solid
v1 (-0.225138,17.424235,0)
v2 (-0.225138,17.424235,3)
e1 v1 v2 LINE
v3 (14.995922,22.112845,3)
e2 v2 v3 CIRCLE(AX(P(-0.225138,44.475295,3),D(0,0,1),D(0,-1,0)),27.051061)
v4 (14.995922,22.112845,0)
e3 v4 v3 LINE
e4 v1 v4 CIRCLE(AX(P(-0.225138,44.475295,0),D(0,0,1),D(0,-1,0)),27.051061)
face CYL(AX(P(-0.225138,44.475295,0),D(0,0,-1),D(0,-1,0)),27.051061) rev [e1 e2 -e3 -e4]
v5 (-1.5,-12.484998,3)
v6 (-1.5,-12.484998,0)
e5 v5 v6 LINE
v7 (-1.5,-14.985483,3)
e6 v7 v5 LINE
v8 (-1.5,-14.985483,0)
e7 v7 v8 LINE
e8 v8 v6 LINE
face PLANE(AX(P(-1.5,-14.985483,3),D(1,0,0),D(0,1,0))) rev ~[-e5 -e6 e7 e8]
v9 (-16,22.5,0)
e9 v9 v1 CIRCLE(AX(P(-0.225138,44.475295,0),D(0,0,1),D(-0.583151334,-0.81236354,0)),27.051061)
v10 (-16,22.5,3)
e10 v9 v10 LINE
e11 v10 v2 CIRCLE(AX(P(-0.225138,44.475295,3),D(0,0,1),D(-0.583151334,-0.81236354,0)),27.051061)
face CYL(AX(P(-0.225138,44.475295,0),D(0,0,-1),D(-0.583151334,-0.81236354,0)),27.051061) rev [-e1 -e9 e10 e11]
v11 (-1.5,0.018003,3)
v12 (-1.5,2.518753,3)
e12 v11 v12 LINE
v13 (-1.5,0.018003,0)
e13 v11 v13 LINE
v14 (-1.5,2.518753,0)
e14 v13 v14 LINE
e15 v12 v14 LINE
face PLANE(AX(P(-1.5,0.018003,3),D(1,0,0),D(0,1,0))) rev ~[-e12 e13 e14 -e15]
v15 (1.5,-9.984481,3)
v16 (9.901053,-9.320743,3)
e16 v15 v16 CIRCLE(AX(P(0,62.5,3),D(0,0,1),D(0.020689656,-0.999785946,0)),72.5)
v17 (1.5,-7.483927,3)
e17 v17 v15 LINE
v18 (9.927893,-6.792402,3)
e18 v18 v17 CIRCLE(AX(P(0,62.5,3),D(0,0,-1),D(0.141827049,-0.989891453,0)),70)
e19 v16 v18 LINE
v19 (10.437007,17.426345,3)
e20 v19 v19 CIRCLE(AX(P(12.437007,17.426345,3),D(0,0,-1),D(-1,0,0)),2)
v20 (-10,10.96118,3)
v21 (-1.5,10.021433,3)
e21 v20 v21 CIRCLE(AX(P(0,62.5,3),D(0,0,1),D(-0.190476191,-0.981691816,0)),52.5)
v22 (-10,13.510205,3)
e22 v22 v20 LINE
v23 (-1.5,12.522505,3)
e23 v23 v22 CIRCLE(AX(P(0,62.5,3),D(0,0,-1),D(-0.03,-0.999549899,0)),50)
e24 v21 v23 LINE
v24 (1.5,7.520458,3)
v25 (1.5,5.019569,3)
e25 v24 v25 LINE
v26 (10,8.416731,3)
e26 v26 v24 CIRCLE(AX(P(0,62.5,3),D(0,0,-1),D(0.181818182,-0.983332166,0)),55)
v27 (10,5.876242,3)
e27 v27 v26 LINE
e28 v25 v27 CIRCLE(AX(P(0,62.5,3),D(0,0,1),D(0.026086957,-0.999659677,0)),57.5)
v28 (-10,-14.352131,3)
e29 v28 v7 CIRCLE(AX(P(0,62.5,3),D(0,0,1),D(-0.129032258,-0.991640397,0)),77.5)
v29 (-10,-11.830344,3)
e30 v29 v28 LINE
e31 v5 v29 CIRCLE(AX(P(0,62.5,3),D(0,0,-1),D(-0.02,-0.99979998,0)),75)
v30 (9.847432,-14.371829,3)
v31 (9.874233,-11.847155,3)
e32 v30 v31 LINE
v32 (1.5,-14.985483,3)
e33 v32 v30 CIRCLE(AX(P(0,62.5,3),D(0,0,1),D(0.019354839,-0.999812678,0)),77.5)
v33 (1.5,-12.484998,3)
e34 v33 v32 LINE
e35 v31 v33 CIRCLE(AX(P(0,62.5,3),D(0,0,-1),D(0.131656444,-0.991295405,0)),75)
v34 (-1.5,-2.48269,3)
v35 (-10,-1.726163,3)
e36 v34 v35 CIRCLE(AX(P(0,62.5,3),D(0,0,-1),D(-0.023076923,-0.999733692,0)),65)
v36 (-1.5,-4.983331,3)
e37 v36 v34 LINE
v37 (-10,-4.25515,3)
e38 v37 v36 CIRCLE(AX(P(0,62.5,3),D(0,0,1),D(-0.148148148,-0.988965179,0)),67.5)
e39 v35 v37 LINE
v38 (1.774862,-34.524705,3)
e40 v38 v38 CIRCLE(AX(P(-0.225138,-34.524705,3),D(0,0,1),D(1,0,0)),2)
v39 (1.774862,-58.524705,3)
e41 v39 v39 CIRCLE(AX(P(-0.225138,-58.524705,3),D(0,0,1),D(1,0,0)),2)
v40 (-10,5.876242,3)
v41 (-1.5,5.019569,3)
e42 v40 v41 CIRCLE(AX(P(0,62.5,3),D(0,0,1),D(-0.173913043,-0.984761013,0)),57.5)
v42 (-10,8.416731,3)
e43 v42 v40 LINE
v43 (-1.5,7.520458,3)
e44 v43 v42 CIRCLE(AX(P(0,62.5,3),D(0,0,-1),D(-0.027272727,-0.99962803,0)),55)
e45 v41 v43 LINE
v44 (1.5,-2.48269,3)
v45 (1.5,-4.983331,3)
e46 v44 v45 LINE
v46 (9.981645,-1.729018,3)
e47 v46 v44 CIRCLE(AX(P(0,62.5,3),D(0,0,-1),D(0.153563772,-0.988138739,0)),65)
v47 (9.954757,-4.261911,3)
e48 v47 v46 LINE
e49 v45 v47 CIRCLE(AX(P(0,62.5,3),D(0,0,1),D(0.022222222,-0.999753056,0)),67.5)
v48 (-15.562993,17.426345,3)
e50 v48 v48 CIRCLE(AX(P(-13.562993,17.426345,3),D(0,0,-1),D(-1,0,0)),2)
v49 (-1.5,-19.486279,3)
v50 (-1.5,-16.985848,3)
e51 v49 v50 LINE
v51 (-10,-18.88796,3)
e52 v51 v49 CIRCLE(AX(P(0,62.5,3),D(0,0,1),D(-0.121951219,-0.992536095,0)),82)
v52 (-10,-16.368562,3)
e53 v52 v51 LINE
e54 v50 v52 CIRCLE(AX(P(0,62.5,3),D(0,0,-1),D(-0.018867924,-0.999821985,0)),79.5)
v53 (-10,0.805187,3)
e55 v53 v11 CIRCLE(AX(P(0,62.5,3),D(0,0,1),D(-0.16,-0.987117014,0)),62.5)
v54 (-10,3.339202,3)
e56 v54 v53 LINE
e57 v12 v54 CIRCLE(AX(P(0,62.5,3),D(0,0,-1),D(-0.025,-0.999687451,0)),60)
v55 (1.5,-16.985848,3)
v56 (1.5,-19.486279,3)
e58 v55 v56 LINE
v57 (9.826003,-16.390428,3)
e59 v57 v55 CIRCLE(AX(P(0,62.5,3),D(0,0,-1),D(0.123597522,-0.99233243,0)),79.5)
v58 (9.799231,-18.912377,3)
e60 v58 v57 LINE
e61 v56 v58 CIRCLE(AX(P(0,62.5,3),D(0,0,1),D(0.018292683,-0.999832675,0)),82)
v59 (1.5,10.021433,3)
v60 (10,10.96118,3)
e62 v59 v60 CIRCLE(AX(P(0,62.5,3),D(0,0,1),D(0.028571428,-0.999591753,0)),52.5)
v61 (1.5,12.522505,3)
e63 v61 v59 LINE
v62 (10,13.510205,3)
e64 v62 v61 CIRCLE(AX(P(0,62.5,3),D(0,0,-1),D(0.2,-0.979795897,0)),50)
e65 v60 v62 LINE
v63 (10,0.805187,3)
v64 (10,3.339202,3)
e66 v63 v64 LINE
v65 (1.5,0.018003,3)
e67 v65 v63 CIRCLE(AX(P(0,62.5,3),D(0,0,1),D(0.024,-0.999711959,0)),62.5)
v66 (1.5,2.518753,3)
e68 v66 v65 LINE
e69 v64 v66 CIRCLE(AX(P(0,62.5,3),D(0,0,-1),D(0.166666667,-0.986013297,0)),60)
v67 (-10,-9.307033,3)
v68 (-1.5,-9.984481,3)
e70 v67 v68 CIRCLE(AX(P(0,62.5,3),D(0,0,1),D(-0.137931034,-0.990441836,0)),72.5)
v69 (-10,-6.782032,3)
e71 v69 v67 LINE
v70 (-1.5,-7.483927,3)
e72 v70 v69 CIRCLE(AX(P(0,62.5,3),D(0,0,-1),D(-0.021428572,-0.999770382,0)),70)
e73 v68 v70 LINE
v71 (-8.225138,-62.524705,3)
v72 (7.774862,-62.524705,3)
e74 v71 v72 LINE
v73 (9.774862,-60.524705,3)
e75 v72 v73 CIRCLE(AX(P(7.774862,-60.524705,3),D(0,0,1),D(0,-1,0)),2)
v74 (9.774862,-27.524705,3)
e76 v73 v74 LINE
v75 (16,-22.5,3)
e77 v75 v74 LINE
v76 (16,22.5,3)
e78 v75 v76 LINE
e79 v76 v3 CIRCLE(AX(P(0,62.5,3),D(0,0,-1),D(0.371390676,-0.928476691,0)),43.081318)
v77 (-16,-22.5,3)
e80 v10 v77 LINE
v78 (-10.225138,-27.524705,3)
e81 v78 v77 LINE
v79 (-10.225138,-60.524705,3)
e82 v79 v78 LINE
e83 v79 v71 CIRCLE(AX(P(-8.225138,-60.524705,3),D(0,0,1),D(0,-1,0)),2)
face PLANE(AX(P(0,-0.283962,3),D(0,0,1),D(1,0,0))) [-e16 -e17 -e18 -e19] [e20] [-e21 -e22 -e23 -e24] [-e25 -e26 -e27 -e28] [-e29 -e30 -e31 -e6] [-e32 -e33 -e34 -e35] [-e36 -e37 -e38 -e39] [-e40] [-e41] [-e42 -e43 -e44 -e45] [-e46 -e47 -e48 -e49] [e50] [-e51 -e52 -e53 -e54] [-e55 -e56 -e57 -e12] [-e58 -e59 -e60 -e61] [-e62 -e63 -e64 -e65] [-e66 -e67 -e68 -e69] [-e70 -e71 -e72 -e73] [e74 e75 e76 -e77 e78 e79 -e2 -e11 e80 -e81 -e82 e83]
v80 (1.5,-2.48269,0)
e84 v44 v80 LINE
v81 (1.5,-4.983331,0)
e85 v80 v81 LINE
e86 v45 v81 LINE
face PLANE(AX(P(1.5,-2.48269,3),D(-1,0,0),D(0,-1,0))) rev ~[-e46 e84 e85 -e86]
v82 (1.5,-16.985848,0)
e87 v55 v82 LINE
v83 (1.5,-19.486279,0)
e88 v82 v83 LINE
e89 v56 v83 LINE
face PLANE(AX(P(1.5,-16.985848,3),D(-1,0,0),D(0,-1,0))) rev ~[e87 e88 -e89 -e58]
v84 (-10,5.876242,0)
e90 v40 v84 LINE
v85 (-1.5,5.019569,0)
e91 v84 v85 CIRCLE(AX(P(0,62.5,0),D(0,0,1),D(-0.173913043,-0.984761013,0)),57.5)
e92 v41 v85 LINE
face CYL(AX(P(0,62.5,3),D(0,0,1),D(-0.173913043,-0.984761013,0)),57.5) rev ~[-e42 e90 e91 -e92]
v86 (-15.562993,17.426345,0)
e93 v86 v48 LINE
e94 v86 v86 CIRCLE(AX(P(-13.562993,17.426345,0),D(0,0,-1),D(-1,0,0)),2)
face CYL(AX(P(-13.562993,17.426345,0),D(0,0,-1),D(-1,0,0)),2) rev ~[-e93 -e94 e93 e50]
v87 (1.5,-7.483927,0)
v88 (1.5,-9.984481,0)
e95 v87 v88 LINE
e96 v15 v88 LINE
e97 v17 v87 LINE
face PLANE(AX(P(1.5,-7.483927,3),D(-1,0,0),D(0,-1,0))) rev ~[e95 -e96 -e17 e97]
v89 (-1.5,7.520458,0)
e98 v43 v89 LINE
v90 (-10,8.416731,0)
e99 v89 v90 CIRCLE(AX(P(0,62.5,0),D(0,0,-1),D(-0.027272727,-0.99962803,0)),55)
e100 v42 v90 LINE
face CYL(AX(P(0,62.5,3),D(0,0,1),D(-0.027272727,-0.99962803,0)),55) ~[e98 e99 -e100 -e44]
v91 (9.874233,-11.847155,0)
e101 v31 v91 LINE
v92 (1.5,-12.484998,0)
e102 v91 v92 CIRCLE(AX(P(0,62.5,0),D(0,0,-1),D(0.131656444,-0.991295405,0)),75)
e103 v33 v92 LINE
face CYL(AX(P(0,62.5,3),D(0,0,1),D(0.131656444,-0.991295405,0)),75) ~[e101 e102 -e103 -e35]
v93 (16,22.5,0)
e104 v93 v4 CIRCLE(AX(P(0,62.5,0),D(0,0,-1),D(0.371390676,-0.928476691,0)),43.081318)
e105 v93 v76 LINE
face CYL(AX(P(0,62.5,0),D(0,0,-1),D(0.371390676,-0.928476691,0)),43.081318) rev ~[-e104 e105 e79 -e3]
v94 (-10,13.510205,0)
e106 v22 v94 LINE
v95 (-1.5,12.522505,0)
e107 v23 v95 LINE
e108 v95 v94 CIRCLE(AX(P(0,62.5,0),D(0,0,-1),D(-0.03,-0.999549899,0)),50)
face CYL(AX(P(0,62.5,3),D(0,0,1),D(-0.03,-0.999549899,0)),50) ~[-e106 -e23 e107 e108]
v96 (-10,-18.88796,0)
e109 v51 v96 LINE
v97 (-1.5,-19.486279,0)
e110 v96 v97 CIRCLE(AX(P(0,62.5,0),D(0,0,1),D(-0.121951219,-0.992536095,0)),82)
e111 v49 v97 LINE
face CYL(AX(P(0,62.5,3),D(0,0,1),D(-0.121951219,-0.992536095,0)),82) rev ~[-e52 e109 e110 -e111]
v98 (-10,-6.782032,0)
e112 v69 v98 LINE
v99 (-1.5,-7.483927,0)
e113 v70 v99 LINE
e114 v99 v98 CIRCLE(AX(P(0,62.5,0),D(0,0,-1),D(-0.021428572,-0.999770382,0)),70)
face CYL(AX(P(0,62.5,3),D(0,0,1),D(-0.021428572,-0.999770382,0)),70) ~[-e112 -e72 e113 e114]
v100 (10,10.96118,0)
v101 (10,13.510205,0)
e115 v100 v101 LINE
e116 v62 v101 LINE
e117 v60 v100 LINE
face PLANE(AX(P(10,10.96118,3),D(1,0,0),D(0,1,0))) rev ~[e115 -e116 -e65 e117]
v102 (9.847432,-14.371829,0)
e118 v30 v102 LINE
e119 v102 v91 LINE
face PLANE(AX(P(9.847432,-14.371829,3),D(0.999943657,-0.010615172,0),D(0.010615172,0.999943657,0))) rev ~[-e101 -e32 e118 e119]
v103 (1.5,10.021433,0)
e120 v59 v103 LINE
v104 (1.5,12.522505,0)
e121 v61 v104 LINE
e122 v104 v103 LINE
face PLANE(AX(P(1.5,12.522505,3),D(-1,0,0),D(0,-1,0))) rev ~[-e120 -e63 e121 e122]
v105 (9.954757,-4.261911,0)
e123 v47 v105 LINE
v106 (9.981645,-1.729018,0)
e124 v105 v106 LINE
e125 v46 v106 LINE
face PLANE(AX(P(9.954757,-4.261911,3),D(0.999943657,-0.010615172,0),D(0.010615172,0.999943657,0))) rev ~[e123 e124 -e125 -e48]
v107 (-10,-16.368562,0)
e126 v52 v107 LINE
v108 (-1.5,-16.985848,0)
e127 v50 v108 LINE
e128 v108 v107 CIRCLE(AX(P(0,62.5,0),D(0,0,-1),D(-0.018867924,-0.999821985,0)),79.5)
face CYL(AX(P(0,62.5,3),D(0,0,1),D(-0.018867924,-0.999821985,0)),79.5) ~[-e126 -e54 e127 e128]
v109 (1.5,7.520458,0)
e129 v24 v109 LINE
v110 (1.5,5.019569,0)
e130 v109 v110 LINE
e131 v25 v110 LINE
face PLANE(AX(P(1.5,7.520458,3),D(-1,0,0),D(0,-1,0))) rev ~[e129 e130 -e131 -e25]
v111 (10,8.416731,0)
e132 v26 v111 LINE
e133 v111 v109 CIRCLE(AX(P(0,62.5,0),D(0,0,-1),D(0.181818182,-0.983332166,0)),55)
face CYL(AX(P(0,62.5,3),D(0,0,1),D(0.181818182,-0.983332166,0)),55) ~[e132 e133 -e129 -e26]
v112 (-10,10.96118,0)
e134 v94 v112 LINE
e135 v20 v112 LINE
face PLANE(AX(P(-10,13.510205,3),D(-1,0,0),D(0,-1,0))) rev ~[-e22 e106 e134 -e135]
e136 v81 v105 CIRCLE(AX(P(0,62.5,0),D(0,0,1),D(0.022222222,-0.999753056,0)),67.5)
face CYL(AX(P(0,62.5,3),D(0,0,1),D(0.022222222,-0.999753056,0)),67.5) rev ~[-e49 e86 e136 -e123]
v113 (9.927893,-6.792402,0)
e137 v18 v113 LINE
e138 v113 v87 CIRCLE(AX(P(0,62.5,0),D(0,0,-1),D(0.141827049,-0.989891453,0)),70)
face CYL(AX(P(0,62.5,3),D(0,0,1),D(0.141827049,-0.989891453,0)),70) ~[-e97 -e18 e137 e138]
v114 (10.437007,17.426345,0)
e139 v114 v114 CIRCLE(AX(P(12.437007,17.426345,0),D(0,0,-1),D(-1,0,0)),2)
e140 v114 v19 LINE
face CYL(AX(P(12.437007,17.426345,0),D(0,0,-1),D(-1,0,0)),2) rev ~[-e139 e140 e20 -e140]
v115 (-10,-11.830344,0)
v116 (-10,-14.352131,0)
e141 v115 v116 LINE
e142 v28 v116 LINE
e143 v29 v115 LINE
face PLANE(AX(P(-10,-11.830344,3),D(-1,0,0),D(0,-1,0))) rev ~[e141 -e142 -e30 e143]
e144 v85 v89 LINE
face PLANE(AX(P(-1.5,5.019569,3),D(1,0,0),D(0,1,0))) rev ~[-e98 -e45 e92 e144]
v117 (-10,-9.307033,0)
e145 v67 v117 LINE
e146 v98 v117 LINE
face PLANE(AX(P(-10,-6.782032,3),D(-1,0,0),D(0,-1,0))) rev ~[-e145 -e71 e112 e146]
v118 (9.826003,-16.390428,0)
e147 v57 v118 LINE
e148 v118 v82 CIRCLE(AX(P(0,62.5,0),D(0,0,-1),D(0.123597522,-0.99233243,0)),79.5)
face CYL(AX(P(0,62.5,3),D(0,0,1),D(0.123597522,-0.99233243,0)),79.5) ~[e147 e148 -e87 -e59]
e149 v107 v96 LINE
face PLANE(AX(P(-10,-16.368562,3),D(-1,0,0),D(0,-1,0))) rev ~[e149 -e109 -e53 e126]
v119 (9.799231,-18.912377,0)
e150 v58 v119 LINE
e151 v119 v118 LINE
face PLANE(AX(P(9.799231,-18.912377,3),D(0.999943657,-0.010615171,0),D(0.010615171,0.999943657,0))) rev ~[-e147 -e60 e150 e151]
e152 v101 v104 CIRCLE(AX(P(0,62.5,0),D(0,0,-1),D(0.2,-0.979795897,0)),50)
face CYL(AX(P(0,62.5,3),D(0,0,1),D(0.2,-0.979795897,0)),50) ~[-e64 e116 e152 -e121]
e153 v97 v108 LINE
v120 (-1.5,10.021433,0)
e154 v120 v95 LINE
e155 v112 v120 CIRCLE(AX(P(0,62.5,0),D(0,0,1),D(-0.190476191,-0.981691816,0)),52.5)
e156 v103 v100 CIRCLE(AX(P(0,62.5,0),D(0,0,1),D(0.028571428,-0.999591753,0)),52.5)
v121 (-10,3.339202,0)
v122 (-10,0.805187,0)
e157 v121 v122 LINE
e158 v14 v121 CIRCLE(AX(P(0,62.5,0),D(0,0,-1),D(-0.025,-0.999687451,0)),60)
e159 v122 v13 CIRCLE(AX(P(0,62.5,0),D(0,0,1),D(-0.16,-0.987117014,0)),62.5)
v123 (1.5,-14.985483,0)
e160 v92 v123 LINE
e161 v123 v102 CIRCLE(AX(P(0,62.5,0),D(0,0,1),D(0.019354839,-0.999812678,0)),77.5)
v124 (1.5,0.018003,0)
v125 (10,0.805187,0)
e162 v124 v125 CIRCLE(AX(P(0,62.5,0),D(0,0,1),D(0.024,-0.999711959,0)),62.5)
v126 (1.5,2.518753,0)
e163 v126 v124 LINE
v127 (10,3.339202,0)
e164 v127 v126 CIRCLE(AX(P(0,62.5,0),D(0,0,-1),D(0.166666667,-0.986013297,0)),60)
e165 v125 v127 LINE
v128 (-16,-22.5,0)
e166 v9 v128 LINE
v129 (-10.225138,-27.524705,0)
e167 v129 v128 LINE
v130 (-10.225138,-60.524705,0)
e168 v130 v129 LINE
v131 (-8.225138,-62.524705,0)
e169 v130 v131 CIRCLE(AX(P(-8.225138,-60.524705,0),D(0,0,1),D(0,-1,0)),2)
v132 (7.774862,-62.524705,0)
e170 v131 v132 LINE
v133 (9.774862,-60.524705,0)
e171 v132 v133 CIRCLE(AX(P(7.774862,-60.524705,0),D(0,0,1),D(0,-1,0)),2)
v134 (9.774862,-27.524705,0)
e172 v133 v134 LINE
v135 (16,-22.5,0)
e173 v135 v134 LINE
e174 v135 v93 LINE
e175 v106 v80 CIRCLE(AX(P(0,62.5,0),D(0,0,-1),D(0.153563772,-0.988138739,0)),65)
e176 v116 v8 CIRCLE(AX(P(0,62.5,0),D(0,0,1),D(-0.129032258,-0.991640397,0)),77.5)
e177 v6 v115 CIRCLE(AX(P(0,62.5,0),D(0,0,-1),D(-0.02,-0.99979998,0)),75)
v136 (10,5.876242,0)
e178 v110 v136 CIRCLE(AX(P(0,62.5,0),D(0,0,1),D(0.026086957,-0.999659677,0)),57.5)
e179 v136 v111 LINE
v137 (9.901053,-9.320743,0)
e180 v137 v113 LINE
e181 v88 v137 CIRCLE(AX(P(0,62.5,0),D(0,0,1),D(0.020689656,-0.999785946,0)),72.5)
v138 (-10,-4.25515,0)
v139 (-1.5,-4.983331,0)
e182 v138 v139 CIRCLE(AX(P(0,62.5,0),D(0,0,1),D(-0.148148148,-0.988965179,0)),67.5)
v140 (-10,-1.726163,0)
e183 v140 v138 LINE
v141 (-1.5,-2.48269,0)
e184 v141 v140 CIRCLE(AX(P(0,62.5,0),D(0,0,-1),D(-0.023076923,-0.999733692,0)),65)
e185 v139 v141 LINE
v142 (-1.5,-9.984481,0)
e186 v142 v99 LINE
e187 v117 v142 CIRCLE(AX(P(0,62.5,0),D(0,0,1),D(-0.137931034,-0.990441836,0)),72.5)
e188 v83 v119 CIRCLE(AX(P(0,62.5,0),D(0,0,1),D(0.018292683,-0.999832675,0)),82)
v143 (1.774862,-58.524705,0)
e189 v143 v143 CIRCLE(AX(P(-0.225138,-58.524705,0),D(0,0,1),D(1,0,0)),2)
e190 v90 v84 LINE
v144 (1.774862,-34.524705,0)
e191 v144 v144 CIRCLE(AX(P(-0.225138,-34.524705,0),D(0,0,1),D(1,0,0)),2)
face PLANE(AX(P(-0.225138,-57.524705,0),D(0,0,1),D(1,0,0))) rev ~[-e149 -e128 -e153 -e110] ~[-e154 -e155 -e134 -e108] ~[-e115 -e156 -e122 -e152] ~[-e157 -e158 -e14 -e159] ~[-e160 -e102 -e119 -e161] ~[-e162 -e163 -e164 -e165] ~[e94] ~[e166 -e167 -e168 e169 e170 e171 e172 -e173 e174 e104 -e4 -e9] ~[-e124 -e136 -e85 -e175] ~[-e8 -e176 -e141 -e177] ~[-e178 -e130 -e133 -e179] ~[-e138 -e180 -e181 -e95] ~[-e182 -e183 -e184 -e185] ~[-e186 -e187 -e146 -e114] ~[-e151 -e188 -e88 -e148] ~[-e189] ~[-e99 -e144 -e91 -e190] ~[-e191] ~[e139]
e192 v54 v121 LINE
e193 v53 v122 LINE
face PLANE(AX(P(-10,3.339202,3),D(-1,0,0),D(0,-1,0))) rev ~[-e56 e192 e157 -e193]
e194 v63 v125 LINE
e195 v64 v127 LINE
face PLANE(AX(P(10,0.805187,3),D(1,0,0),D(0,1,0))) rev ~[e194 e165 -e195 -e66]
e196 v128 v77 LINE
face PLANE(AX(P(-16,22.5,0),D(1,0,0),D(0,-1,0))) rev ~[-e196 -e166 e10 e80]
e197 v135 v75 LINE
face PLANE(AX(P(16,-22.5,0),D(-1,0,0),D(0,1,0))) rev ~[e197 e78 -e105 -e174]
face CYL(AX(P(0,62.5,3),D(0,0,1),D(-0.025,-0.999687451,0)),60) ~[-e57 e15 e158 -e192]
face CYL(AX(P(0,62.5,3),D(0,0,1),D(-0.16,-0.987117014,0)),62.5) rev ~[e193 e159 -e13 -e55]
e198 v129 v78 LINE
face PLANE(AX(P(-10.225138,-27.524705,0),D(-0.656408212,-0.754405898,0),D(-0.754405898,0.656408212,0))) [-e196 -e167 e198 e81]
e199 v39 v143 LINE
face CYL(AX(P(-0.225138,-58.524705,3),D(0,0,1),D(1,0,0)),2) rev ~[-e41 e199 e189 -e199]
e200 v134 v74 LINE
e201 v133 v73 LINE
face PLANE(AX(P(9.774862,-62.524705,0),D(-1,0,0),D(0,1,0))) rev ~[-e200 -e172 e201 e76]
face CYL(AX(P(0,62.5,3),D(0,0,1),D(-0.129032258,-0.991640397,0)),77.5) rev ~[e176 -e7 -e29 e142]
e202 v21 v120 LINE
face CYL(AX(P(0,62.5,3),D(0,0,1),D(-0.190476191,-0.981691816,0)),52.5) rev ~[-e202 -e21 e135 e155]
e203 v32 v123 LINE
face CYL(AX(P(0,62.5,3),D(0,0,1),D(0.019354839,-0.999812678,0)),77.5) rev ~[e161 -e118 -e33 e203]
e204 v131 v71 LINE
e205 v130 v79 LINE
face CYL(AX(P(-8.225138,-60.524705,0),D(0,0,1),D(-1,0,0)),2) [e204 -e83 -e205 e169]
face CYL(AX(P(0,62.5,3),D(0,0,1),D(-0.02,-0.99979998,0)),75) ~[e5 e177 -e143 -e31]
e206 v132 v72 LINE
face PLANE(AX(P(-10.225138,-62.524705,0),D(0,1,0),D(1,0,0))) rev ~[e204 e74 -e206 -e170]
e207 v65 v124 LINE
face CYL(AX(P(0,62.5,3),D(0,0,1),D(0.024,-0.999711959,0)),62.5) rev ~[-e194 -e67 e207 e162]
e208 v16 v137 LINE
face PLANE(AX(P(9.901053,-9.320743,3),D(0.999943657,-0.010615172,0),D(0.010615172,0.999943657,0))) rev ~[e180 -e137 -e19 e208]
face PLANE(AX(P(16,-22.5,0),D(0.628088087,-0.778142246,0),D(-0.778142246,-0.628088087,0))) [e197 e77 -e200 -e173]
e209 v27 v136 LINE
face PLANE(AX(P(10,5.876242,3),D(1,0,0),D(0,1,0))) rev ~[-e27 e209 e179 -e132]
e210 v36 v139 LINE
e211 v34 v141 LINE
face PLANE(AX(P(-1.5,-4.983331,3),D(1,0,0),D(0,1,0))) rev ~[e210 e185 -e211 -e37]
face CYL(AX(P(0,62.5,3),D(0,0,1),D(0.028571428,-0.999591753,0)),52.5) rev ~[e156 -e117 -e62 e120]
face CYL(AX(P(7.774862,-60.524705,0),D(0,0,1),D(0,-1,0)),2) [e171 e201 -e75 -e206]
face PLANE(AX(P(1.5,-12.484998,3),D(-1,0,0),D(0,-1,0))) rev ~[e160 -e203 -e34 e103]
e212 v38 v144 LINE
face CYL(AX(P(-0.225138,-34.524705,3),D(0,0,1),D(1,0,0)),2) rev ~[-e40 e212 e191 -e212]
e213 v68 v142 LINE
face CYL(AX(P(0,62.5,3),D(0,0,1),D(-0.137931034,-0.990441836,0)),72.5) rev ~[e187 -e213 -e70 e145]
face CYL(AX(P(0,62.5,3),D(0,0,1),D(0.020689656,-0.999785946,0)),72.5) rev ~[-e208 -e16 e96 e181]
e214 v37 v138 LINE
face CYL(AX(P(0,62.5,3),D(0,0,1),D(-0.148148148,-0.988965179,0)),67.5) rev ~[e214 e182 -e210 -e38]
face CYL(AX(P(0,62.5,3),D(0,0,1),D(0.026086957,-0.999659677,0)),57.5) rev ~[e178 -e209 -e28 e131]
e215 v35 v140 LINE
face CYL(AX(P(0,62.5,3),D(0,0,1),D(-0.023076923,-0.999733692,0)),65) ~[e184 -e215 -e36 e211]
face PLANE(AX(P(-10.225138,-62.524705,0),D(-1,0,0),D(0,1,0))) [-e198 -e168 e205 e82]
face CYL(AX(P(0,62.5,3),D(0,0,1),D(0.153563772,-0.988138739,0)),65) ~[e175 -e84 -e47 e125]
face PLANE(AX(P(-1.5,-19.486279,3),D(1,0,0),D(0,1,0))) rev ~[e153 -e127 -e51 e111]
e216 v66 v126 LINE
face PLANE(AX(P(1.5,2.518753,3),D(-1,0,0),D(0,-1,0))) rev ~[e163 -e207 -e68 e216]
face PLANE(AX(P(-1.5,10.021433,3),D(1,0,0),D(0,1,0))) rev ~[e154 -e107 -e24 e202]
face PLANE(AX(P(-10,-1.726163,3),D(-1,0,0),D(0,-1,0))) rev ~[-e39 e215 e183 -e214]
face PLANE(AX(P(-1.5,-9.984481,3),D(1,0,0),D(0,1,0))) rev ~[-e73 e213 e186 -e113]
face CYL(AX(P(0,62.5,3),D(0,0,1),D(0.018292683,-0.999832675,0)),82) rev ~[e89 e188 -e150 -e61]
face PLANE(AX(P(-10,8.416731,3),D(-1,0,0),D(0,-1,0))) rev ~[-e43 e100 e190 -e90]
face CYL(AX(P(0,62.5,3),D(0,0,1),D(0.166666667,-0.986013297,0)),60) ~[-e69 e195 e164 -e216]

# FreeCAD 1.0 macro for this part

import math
import FreeCAD as App
import Part
import Sketcher

V = App.Vector
Q = App.Units.Quantity


def edges_at(feature, points):
    """Names of the edges that pass closest to the given points."""
    edges = feature.Shape.Edges
    near = lambda p: min(range(len(edges)), key=lambda i: edges[i].distToShape(Part.Vertex(*p))[0])
    return sorted({f"Edge{near(p) + 1}" for p in points})

doc = App.newDocument("Part")
body = doc.addObject("PartDesign::Body", "Body")

# Sketch on XY plane
sketch1 = doc.addObject("Sketcher::SketchObject", "Sketch")
body.addObject(sketch1)
sketch1.AttachmentSupport = (doc.XY_Plane, [""])
sketch1.MapMode = "FlatFace"
sketch1.addGeometry(Part.LineSegment(V(-16, 22, 0), V(-16, -22, 0)), False)
sketch1.addGeometry(Part.LineSegment(V(-16, -22, 0), V(-10, -28, 0)), False)
sketch1.addGeometry(Part.LineSegment(V(-10, -28, 0), V(-10, -63, 0)), False)
sketch1.addGeometry(Part.LineSegment(V(-10, -63, 0), V(10, -63, 0)), False)
sketch1.addGeometry(Part.LineSegment(V(10, -63, 0), V(10, -28, 0)), False)
sketch1.addGeometry(Part.LineSegment(V(10, -28, 0), V(16, -22, 0)), False)
sketch1.addGeometry(Part.LineSegment(V(16, -22, 0), V(16, 22, 0)), False)
sketch1.addGeometry(Part.ArcOfCircle(Part.Circle(V(0, 63, 0), V(0, 0, 1), 43), math.radians(-112), math.radians(-68)), False)
sketch1.addConstraint(Sketcher.Constraint("Coincident", 0, 2, 1, 1))
sketch1.addConstraint(Sketcher.Constraint("Coincident", 1, 2, 2, 1))
sketch1.addConstraint(Sketcher.Constraint("Coincident", 2, 2, 3, 1))
sketch1.addConstraint(Sketcher.Constraint("Coincident", 3, 2, 4, 1))
sketch1.addConstraint(Sketcher.Constraint("Coincident", 4, 2, 5, 1))
sketch1.addConstraint(Sketcher.Constraint("Coincident", 5, 2, 6, 1))
sketch1.addConstraint(Sketcher.Constraint("Coincident", 6, 2, 7, 2))
sketch1.addConstraint(Sketcher.Constraint("Coincident", 7, 1, 0, 1))
sketch1.addConstraint(Sketcher.Constraint("Vertical", 0))
sketch1.addConstraint(Sketcher.Constraint("Vertical", 2))
sketch1.addConstraint(Sketcher.Constraint("Horizontal", 3))
sketch1.addConstraint(Sketcher.Constraint("Vertical", 4))
sketch1.addConstraint(Sketcher.Constraint("Vertical", 6))
sketch1.addConstraint(Sketcher.Constraint("Symmetric", 0, 2, 6, 2, -1, 1))
sketch1.addConstraint(Sketcher.Constraint("PointOnObject", 7, 3, -2))
sketch1.addConstraint(Sketcher.Constraint("Horizontal", 1, 2, 4, 2))
sketch1.addConstraint(Sketcher.Constraint("Horizontal", 0, 2, 5, 2))
sketch1.addConstraint(Sketcher.Constraint("DistanceX", 3, 1, 3, 2, Q("20 mm")))
sketch1.addConstraint(Sketcher.Constraint("DistanceY", 0, 2, 0, 1, Q("45 mm")))
sketch1.addConstraint(Sketcher.Constraint("DistanceY", 2, 2, 2, 1, Q("35 mm")))
sketch1.addConstraint(Sketcher.Constraint("Distance", 5, Q("8 mm")))
sketch1.addConstraint(Sketcher.Constraint("DistanceX", 0, 2, -1, 1, Q("16 mm")))
sketch1.addConstraint(Sketcher.Constraint("DistanceY", 0, 2, 7, 3, Q("85 mm")))
sketch1.addConstraint(Sketcher.Constraint("Distance", 1, Q("7.654847 mm")))
pad1 = doc.addObject("PartDesign::Pad", "Pad")
body.addObject(pad1)
pad1.Profile = sketch1
pad1.Length = 3
doc.recompute()

fillet = doc.addObject("PartDesign::Fillet", "Fillet")
body.addObject(fillet)
fillet.Base = (pad1, edges_at(pad1, [(9.775, -62.525, 1.5), (-10.225, -62.525, 1.5)]))
fillet.Radius = 2

# Sketch on XY plane
sketch2 = doc.addObject("Sketcher::SketchObject", "Sketch001")
body.addObject(sketch2)
sketch2.AttachmentSupport = (doc.XY_Plane, [""])
sketch2.MapMode = "FlatFace"
sketch2.AttachmentOffset = App.Placement(V(0, 0, 3), App.Rotation())
sketch2.addGeometry(Part.Circle(V(-0.2, -57.5, 0), V(0, 0, 1), 1.5), False)
sketch2.addConstraint(Sketcher.Constraint("Diameter", 0, Q("3 mm")))
sketch2.addConstraint(Sketcher.Constraint("DistanceX", 0, 3, -1, 1, Q("0.225138 mm")))
sketch2.addConstraint(Sketcher.Constraint("DistanceY", 0, 3, -1, 1, Q("57.524705 mm")))
doc.recompute()
hole = doc.addObject("PartDesign::Hole", "Hole")
body.addObject(hole)
hole.Profile = sketch2
hole.ThreadType = "None"
hole.Diameter = 3
hole.DepthType = "ThroughAll"

# Sketch on XY plane
sketch3 = doc.addObject("Sketcher::SketchObject", "Sketch002")
body.addObject(sketch3)
sketch3.AttachmentSupport = (doc.XY_Plane, [""])
sketch3.MapMode = "FlatFace"
sketch3.AttachmentOffset = App.Placement(V(0, 0, 3), App.Rotation())
sketch3.addGeometry(Part.Circle(V(-0.2, -32.5, 0), V(0, 0, 1), 1.5), False)
sketch3.addConstraint(Sketcher.Constraint("Diameter", 0, Q("3 mm")))
sketch3.addConstraint(Sketcher.Constraint("DistanceX", 0, 3, -1, 1, Q("0.225138 mm")))
sketch3.addConstraint(Sketcher.Constraint("DistanceY", 0, 3, -1, 1, Q("32.524705 mm")))
doc.recompute()
hole2 = doc.addObject("PartDesign::Hole", "Hole001")
body.addObject(hole2)
hole2.Profile = sketch3
hole2.ThreadType = "None"
hole2.Diameter = 3
hole2.DepthType = "ThroughAll"

# Sketch on XY plane
sketch4 = doc.addObject("Sketcher::SketchObject", "Sketch003")
body.addObject(sketch4)
sketch4.AttachmentSupport = (doc.XY_Plane, [""])
sketch4.MapMode = "FlatFace"
sketch4.AttachmentOffset = App.Placement(V(0, 0, 3), App.Rotation())
sketch4.addGeometry(Part.Circle(V(-14, 19.6, 0), V(0, 0, 1), 1.5), False)
sketch4.addConstraint(Sketcher.Constraint("Diameter", 0, Q("3 mm")))
sketch4.addConstraint(Sketcher.Constraint("DistanceX", 0, 3, -1, 1, Q("13.971667 mm")))
sketch4.addConstraint(Sketcher.Constraint("DistanceY", -1, 1, 0, 3, Q("19.647656 mm")))
doc.recompute()
hole3 = doc.addObject("PartDesign::Hole", "Hole002")
body.addObject(hole3)
hole3.Profile = sketch4
hole3.ThreadType = "None"
hole3.Diameter = 3
hole3.DepthType = "ThroughAll"

# Sketch on XY plane
sketch5 = doc.addObject("Sketcher::SketchObject", "Sketch004")
body.addObject(sketch5)
sketch5.AttachmentSupport = (doc.XY_Plane, [""])
sketch5.MapMode = "FlatFace"
sketch5.AttachmentOffset = App.Placement(V(0, 0, 3), App.Rotation())
sketch5.addGeometry(Part.Circle(V(13.9, 19.6, 0), V(0, 0, 1), 1.5), False)
sketch5.addConstraint(Sketcher.Constraint("Diameter", 0, Q("3 mm")))
sketch5.addConstraint(Sketcher.Constraint("DistanceX", -1, 1, 0, 3, Q("13.932428 mm")))
sketch5.addConstraint(Sketcher.Constraint("DistanceY", -1, 1, 0, 3, Q("19.644507 mm")))
doc.recompute()
hole4 = doc.addObject("PartDesign::Hole", "Hole003")
body.addObject(hole4)
hole4.Profile = sketch5
hole4.ThreadType = "None"
hole4.Diameter = 3
hole4.DepthType = "ThroughAll"

# Sketch on XY plane
sketch6 = doc.addObject("Sketcher::SketchObject", "Sketch005")
body.addObject(sketch6)
sketch6.AttachmentSupport = (doc.XY_Plane, [""])
sketch6.MapMode = "FlatFace"
sketch6.AttachmentOffset = App.Placement(V(0, 0, 3), App.Rotation())
sketch6.addGeometry(Part.ArcOfCircle(Part.Circle(V(0, 62.5, 0), V(0, 0, 1), 50), math.radians(-88.280869), math.radians(-78.463041)), False)
sketch6.addGeometry(Part.LineSegment(V(1.5, 12.522505, 0), V(1.5, 10.021433, 0)), False)
sketch6.addGeometry(Part.ArcOfCircle(Part.Circle(V(0, 62.5, 0), V(0, 0, 1), 52.5), math.radians(-88.362755), math.radians(-79.019425)), False)
sketch6.addGeometry(Part.LineSegment(V(10, 10.96118, 0), V(10, 13.510205, 0)), False)
sketch6.addGeometry(Part.LineSegment(V(-1.5, 10.021433, 0), V(-1.5, 12.522505, 0)), False)
sketch6.addGeometry(Part.ArcOfCircle(Part.Circle(V(0, 62.5, 0), V(0, 0, 1), 50), math.radians(-101.536959), math.radians(-91.719131)), False)
sketch6.addGeometry(Part.LineSegment(V(-10, 13.510205, 0), V(-10, 10.96118, 0)), False)
sketch6.addGeometry(Part.ArcOfCircle(Part.Circle(V(0, 62.5, 0), V(0, 0, 1), 52.5), math.radians(-100.980575), math.radians(-91.637245)), False)
sketch6.addGeometry(Part.LineSegment(V(-1.5, 5.019569, 0), V(-1.5, 7.520458, 0)), False)
sketch6.addGeometry(Part.ArcOfCircle(Part.Circle(V(0, 62.5, 0), V(0, 0, 1), 55), math.radians(-100.475682), math.radians(-91.562806)), False)
sketch6.addGeometry(Part.LineSegment(V(-10, 8.416731, 0), V(-10, 5.876242, 0)), False)
sketch6.addGeometry(Part.ArcOfCircle(Part.Circle(V(0, 62.5, 0), V(0, 0, 1), 57.5), math.radians(-100.01541), math.radians(-91.494842)), False)
sketch6.addGeometry(Part.ArcOfCircle(Part.Circle(V(0, 62.5, 0), V(0, 0, 1), 55), math.radians(-88.437194), math.radians(-79.524318)), False)
sketch6.addGeometry(Part.LineSegment(V(1.5, 7.520458, 0), V(1.5, 5.019569, 0)), False)
sketch6.addGeometry(Part.ArcOfCircle(Part.Circle(V(0, 62.5, 0), V(0, 0, 1), 57.5), math.radians(-88.505158), math.radians(-79.98459)), False)
sketch6.addGeometry(Part.LineSegment(V(10, 5.876242, 0), V(10, 8.416731, 0)), False)
sketch6.addGeometry(Part.LineSegment(V(-1.5, 0.018003, 0), V(-1.5, 2.518753, 0)), False)
sketch6.addGeometry(Part.ArcOfCircle(Part.Circle(V(0, 62.5, 0), V(0, 0, 1), 60), math.radians(-99.594068), math.radians(-91.432544)), False)
sketch6.addGeometry(Part.LineSegment(V(-10, 3.339202, 0), V(-10, 0.805187, 0)), False)
sketch6.addGeometry(Part.ArcOfCircle(Part.Circle(V(0, 62.5, 0), V(0, 0, 1), 62.5), math.radians(-99.206896), math.radians(-91.375231)), False)
sketch6.addGeometry(Part.ArcOfCircle(Part.Circle(V(0, 62.5, 0), V(0, 0, 1), 60), math.radians(-88.567456), math.radians(-80.405932)), False)
sketch6.addGeometry(Part.LineSegment(V(1.5, 2.518753, 0), V(1.5, 0.018003, 0)), False)
sketch6.addGeometry(Part.ArcOfCircle(Part.Circle(V(0, 62.5, 0), V(0, 0, 1), 62.5), math.radians(-88.624769), math.radians(-80.793104)), False)
sketch6.addGeometry(Part.LineSegment(V(10, 0.805187, 0), V(10, 3.339202, 0)), False)
sketch6.addGeometry(Part.LineSegment(V(-1.5, -4.983331, 0), V(-1.5, -2.48269, 0)), False)
sketch6.addGeometry(Part.ArcOfCircle(Part.Circle(V(0, 62.5, 0), V(0, 0, 1), 65), math.radians(-98.849883), math.radians(-91.322328)), False)
sketch6.addGeometry(Part.LineSegment(V(-10, -1.726163, 0), V(-10, -4.25515, 0)), False)
sketch6.addGeometry(Part.ArcOfCircle(Part.Circle(V(0, 62.5, 0), V(0, 0, 1), 67.5), math.radians(-98.519624), math.radians(-91.273344)), False)
sketch6.addGeometry(Part.ArcOfCircle(Part.Circle(V(0, 62.5, 0), V(0, 0, 1), 65), math.radians(-88.677672), math.radians(-81.166491)), False)
sketch6.addGeometry(Part.LineSegment(V(1.5, -2.48269, 0), V(1.5, -4.983331, 0)), False)
sketch6.addGeometry(Part.ArcOfCircle(Part.Circle(V(0, 62.5, 0), V(0, 0, 1), 67.5), math.radians(-88.726656), math.radians(-81.519206)), False)
sketch6.addGeometry(Part.LineSegment(V(9.954757, -4.261911, 0), V(9.981645, -1.729018, 0)), False)
sketch6.addGeometry(Part.LineSegment(V(-1.5, -9.984481, 0), V(-1.5, -7.483927, 0)), False)
sketch6.addGeometry(Part.ArcOfCircle(Part.Circle(V(0, 62.5, 0), V(0, 0, 1), 70), math.radians(-98.213211), math.radians(-91.227861)), False)
sketch6.addGeometry(Part.LineSegment(V(-10, -6.782032, 0), V(-10, -9.307033, 0)), False)
sketch6.addGeometry(Part.ArcOfCircle(Part.Circle(V(0, 62.5, 0), V(0, 0, 1), 72.5), math.radians(-97.928142), math.radians(-91.185515)), False)
sketch6.addGeometry(Part.ArcOfCircle(Part.Circle(V(0, 62.5, 0), V(0, 0, 1), 70), math.radians(-88.772139), math.radians(-81.846416)), False)
sketch6.addGeometry(Part.LineSegment(V(1.5, -7.483927, 0), V(1.5, -9.984481, 0)), False)
sketch6.addGeometry(Part.ArcOfCircle(Part.Circle(V(0, 62.5, 0), V(0, 0, 1), 72.5), math.radians(-88.814485), math.radians(-82.150802)), False)
sketch6.addGeometry(Part.LineSegment(V(9.901053, -9.320743, 0), V(9.927893, -6.792402, 0)), False)
sketch6.addGeometry(Part.LineSegment(V(-1.5, -14.985483, 0), V(-1.5, -12.484998, 0)), False)
sketch6.addGeometry(Part.ArcOfCircle(Part.Circle(V(0, 62.5, 0), V(0, 0, 1), 75), math.radians(-97.662256), math.radians(-91.145992)), False)
sketch6.addGeometry(Part.LineSegment(V(-10, -11.830344, 0), V(-10, -14.352131, 0)), False)
sketch6.addGeometry(Part.ArcOfCircle(Part.Circle(V(0, 62.5, 0), V(0, 0, 1), 77.5), math.radians(-97.413674), math.radians(-91.10902)), False)
sketch6.addGeometry(Part.LineSegment(V(-1.5, -19.486279, 0), V(-1.5, -16.985848, 0)), False)
sketch6.addGeometry(Part.ArcOfCircle(Part.Circle(V(0, 62.5, 0), V(0, 0, 1), 79.5), math.radians(-97.226158), math.radians(-91.081117)), False)
sketch6.addGeometry(Part.LineSegment(V(-10, -16.368562, 0), V(-10, -18.88796, 0)), False)
sketch6.addGeometry(Part.ArcOfCircle(Part.Circle(V(0, 62.5, 0), V(0, 0, 1), 82), math.radians(-97.004726), math.radians(-91.048152)), False)
sketch6.addGeometry(Part.ArcOfCircle(Part.Circle(V(0, 62.5, 0), V(0, 0, 1), 79.5), math.radians(-88.918883), math.radians(-82.900228)), False)
sketch6.addGeometry(Part.LineSegment(V(1.5, -16.985848, 0), V(1.5, -19.486279, 0)), False)
sketch6.addGeometry(Part.ArcOfCircle(Part.Circle(V(0, 62.5, 0), V(0, 0, 1), 82), math.radians(-88.951848), math.radians(-83.136591)), False)
sketch6.addGeometry(Part.LineSegment(V(9.799231, -18.912377, 0), V(9.826003, -16.390428, 0)), False)
sketch6.addGeometry(Part.ArcOfCircle(Part.Circle(V(0, 62.5, 0), V(0, 0, 1), 75), math.radians(-88.854008), math.radians(-82.434678)), False)
sketch6.addGeometry(Part.LineSegment(V(1.5, -12.484998, 0), V(1.5, -14.985483, 0)), False)
sketch6.addGeometry(Part.ArcOfCircle(Part.Circle(V(0, 62.5, 0), V(0, 0, 1), 77.5), math.radians(-88.89098), math.radians(-82.700056)), False)
sketch6.addGeometry(Part.LineSegment(V(9.847432, -14.371829, 0), V(9.874233, -11.847155, 0)), False)
sketch6.addConstraint(Sketcher.Constraint("Coincident", 0, 1, 1, 1))
sketch6.addConstraint(Sketcher.Constraint("Coincident", 1, 2, 2, 1))
sketch6.addConstraint(Sketcher.Constraint("Coincident", 2, 2, 3, 1))
sketch6.addConstraint(Sketcher.Constraint("Coincident", 3, 2, 0, 2))
sketch6.addConstraint(Sketcher.Constraint("Coincident", 4, 2, 5, 2))
sketch6.addConstraint(Sketcher.Constraint("Coincident", 5, 1, 6, 1))
sketch6.addConstraint(Sketcher.Constraint("Coincident", 6, 2, 7, 1))
sketch6.addConstraint(Sketcher.Constraint("Coincident", 7, 2, 4, 1))
sketch6.addConstraint(Sketcher.Constraint("Coincident", 8, 2, 9, 2))
sketch6.addConstraint(Sketcher.Constraint("Coincident", 9, 1, 10, 1))
sketch6.addConstraint(Sketcher.Constraint("Coincident", 10, 2, 11, 1))
sketch6.addConstraint(Sketcher.Constraint("Coincident", 11, 2, 8, 1))
sketch6.addConstraint(Sketcher.Constraint("Coincident", 12, 1, 13, 1))
sketch6.addConstraint(Sketcher.Constraint("Coincident", 13, 2, 14, 1))
sketch6.addConstraint(Sketcher.Constraint("Coincident", 14, 2, 15, 1))
sketch6.addConstraint(Sketcher.Constraint("Coincident", 15, 2, 12, 2))
sketch6.addConstraint(Sketcher.Constraint("Coincident", 16, 2, 17, 2))
sketch6.addConstraint(Sketcher.Constraint("Coincident", 17, 1, 18, 1))
sketch6.addConstraint(Sketcher.Constraint("Coincident", 18, 2, 19, 1))
sketch6.addConstraint(Sketcher.Constraint("Coincident", 19, 2, 16, 1))
sketch6.addConstraint(Sketcher.Constraint("Coincident", 20, 1, 21, 1))
sketch6.addConstraint(Sketcher.Constraint("Coincident", 21, 2, 22, 1))
sketch6.addConstraint(Sketcher.Constraint("Coincident", 22, 2, 23, 1))
sketch6.addConstraint(Sketcher.Constraint("Coincident", 23, 2, 20, 2))
sketch6.addConstraint(Sketcher.Constraint("Coincident", 24, 2, 25, 2))
sketch6.addConstraint(Sketcher.Constraint("Coincident", 25, 1, 26, 1))
sketch6.addConstraint(Sketcher.Constraint("Coincident", 26, 2, 27, 1))
sketch6.addConstraint(Sketcher.Constraint("Coincident", 27, 2, 24, 1))
sketch6.addConstraint(Sketcher.Constraint("Coincident", 28, 1, 29, 1))
sketch6.addConstraint(Sketcher.Constraint("Coincident", 29, 2, 30, 1))
sketch6.addConstraint(Sketcher.Constraint("Coincident", 30, 2, 31, 1))
sketch6.addConstraint(Sketcher.Constraint("Coincident", 31, 2, 28, 2))
sketch6.addConstraint(Sketcher.Constraint("Coincident", 32, 2, 33, 2))
sketch6.addConstraint(Sketcher.Constraint("Coincident", 33, 1, 34, 1))
sketch6.addConstraint(Sketcher.Constraint("Coincident", 34, 2, 35, 1))
sketch6.addConstraint(Sketcher.Constraint("Coincident", 35, 2, 32, 1))
sketch6.addConstraint(Sketcher.Constraint("Coincident", 36, 1, 37, 1))
sketch6.addConstraint(Sketcher.Constraint("Coincident", 37, 2, 38, 1))
sketch6.addConstraint(Sketcher.Constraint("Coincident", 38, 2, 39, 1))
sketch6.addConstraint(Sketcher.Constraint("Coincident", 39, 2, 36, 2))
sketch6.addConstraint(Sketcher.Constraint("Coincident", 40, 2, 41, 2))
sketch6.addConstraint(Sketcher.Constraint("Coincident", 41, 1, 42, 1))
sketch6.addConstraint(Sketcher.Constraint("Coincident", 42, 2, 43, 1))
sketch6.addConstraint(Sketcher.Constraint("Coincident", 43, 2, 40, 1))
sketch6.addConstraint(Sketcher.Constraint("Coincident", 44, 2, 45, 2))
sketch6.addConstraint(Sketcher.Constraint("Coincident", 45, 1, 46, 1))
sketch6.addConstraint(Sketcher.Constraint("Coincident", 46, 2, 47, 1))
sketch6.addConstraint(Sketcher.Constraint("Coincident", 47, 2, 44, 1))
sketch6.addConstraint(Sketcher.Constraint("Coincident", 48, 1, 49, 1))
sketch6.addConstraint(Sketcher.Constraint("Coincident", 49, 2, 50, 1))
sketch6.addConstraint(Sketcher.Constraint("Coincident", 50, 2, 51, 1))
sketch6.addConstraint(Sketcher.Constraint("Coincident", 51, 2, 48, 2))
sketch6.addConstraint(Sketcher.Constraint("Coincident", 52, 1, 53, 1))
sketch6.addConstraint(Sketcher.Constraint("Coincident", 53, 2, 54, 1))
sketch6.addConstraint(Sketcher.Constraint("Coincident", 54, 2, 55, 1))
sketch6.addConstraint(Sketcher.Constraint("Coincident", 55, 2, 52, 2))
sketch6.addConstraint(Sketcher.Constraint("Vertical", 1))
sketch6.addConstraint(Sketcher.Constraint("Vertical", 3))
sketch6.addConstraint(Sketcher.Constraint("Vertical", 4))
sketch6.addConstraint(Sketcher.Constraint("Vertical", 6))
sketch6.addConstraint(Sketcher.Constraint("Vertical", 8))
sketch6.addConstraint(Sketcher.Constraint("Vertical", 10))
sketch6.addConstraint(Sketcher.Constraint("Vertical", 13))
sketch6.addConstraint(Sketcher.Constraint("Vertical", 15))
sketch6.addConstraint(Sketcher.Constraint("Vertical", 16))
sketch6.addConstraint(Sketcher.Constraint("Vertical", 18))
sketch6.addConstraint(Sketcher.Constraint("Vertical", 21))
sketch6.addConstraint(Sketcher.Constraint("Vertical", 23))
sketch6.addConstraint(Sketcher.Constraint("Vertical", 24))
sketch6.addConstraint(Sketcher.Constraint("Vertical", 26))
sketch6.addConstraint(Sketcher.Constraint("Vertical", 29))
sketch6.addConstraint(Sketcher.Constraint("Vertical", 32))
sketch6.addConstraint(Sketcher.Constraint("Vertical", 34))
sketch6.addConstraint(Sketcher.Constraint("Vertical", 37))
sketch6.addConstraint(Sketcher.Constraint("Vertical", 40))
sketch6.addConstraint(Sketcher.Constraint("Vertical", 42))
sketch6.addConstraint(Sketcher.Constraint("Vertical", 44))
sketch6.addConstraint(Sketcher.Constraint("Vertical", 46))
sketch6.addConstraint(Sketcher.Constraint("Vertical", 49))
sketch6.addConstraint(Sketcher.Constraint("Vertical", 53))
sketch6.addConstraint(Sketcher.Constraint("Coincident", 2, 3, 0, 3))
sketch6.addConstraint(Sketcher.Constraint("Coincident", 5, 3, 0, 3))
sketch6.addConstraint(Sketcher.Constraint("Coincident", 7, 3, 0, 3))
sketch6.addConstraint(Sketcher.Constraint("Coincident", 9, 3, 0, 3))
sketch6.addConstraint(Sketcher.Constraint("Coincident", 11, 3, 0, 3))
sketch6.addConstraint(Sketcher.Constraint("Coincident", 12, 3, 0, 3))
sketch6.addConstraint(Sketcher.Constraint("Coincident", 14, 3, 0, 3))
sketch6.addConstraint(Sketcher.Constraint("Coincident", 17, 3, 0, 3))
sketch6.addConstraint(Sketcher.Constraint("Coincident", 19, 3, 0, 3))
sketch6.addConstraint(Sketcher.Constraint("Coincident", 20, 3, 0, 3))
sketch6.addConstraint(Sketcher.Constraint("Coincident", 22, 3, 0, 3))
sketch6.addConstraint(Sketcher.Constraint("Coincident", 25, 3, 0, 3))
sketch6.addConstraint(Sketcher.Constraint("Coincident", 27, 3, 0, 3))
sketch6.addConstraint(Sketcher.Constraint("Coincident", 28, 3, 0, 3))
sketch6.addConstraint(Sketcher.Constraint("Coincident", 30, 3, 0, 3))
sketch6.addConstraint(Sketcher.Constraint("Coincident", 33, 3, 0, 3))
sketch6.addConstraint(Sketcher.Constraint("Coincident", 35, 3, 0, 3))
sketch6.addConstraint(Sketcher.Constraint("Coincident", 36, 3, 0, 3))
sketch6.addConstraint(Sketcher.Constraint("Coincident", 38, 3, 0, 3))
sketch6.addConstraint(Sketcher.Constraint("Coincident", 41, 3, 0, 3))
sketch6.addConstraint(Sketcher.Constraint("Coincident", 43, 3, 0, 3))
sketch6.addConstraint(Sketcher.Constraint("Coincident", 45, 3, 0, 3))
sketch6.addConstraint(Sketcher.Constraint("Coincident", 47, 3, 0, 3))
sketch6.addConstraint(Sketcher.Constraint("Coincident", 48, 3, 0, 3))
sketch6.addConstraint(Sketcher.Constraint("Coincident", 50, 3, 0, 3))
sketch6.addConstraint(Sketcher.Constraint("Coincident", 52, 3, 0, 3))
sketch6.addConstraint(Sketcher.Constraint("Coincident", 54, 3, 0, 3))
sketch6.addConstraint(Sketcher.Constraint("PointOnObject", 0, 3, -2))
sketch6.addConstraint(Sketcher.Constraint("Radius", 0, Q("50 mm")))
sketch6.addConstraint(Sketcher.Constraint("Radius", 5, Q("50 mm")))
sketch6.addConstraint(Sketcher.Constraint("Radius", 9, Q("55 mm")))
sketch6.addConstraint(Sketcher.Constraint("Radius", 12, Q("55 mm")))
sketch6.addConstraint(Sketcher.Constraint("Radius", 17, Q("60 mm")))
sketch6.addConstraint(Sketcher.Constraint("Radius", 20, Q("60 mm")))
sketch6.addConstraint(Sketcher.Constraint("Radius", 25, Q("65 mm")))
sketch6.addConstraint(Sketcher.Constraint("Radius", 28, Q("65 mm")))
sketch6.addConstraint(Sketcher.Constraint("Radius", 33, Q("70 mm")))
sketch6.addConstraint(Sketcher.Constraint("Radius", 36, Q("70 mm")))
sketch6.addConstraint(Sketcher.Constraint("Radius", 41, Q("75 mm")))
sketch6.addConstraint(Sketcher.Constraint("Radius", 47, Q("82 mm")))
sketch6.addConstraint(Sketcher.Constraint("Radius", 50, Q("82 mm")))
sketch6.addConstraint(Sketcher.Constraint("Radius", 52, Q("75 mm")))
sketch6.addConstraint(Sketcher.Constraint("Radius", 2, Q("52.5 mm")))
sketch6.addConstraint(Sketcher.Constraint("Radius", 7, Q("52.5 mm")))
sketch6.addConstraint(Sketcher.Constraint("Radius", 11, Q("57.5 mm")))
sketch6.addConstraint(Sketcher.Constraint("Radius", 14, Q("57.5 mm")))
sketch6.addConstraint(Sketcher.Constraint("Radius", 19, Q("62.5 mm")))
sketch6.addConstraint(Sketcher.Constraint("Radius", 22, Q("62.5 mm")))
sketch6.addConstraint(Sketcher.Constraint("Radius", 27, Q("67.5 mm")))
sketch6.addConstraint(Sketcher.Constraint("Radius", 30, Q("67.5 mm")))
sketch6.addConstraint(Sketcher.Constraint("Radius", 35, Q("72.5 mm")))
sketch6.addConstraint(Sketcher.Constraint("Radius", 38, Q("72.5 mm")))
sketch6.addConstraint(Sketcher.Constraint("Radius", 43, Q("77.5 mm")))
sketch6.addConstraint(Sketcher.Constraint("Radius", 45, Q("79.5 mm")))
sketch6.addConstraint(Sketcher.Constraint("Radius", 48, Q("79.5 mm")))
sketch6.addConstraint(Sketcher.Constraint("Radius", 54, Q("77.5 mm")))
sketch6.addConstraint(Sketcher.Constraint("DistanceX", -1, 1, 2, 2, Q("10 mm")))
sketch6.addConstraint(Sketcher.Constraint("DistanceX", 5, 1, -1, 1, Q("10 mm")))
sketch6.addConstraint(Sketcher.Constraint("DistanceX", 9, 1, -1, 1, Q("10 mm")))
sketch6.addConstraint(Sketcher.Constraint("DistanceX", -1, 1, 14, 2, Q("10 mm")))
sketch6.addConstraint(Sketcher.Constraint("DistanceX", 17, 1, -1, 1, Q("10 mm")))
sketch6.addConstraint(Sketcher.Constraint("DistanceX", -1, 1, 22, 2, Q("10 mm")))
sketch6.addConstraint(Sketcher.Constraint("DistanceX", 25, 1, -1, 1, Q("10 mm")))
sketch6.addConstraint(Sketcher.Constraint("DistanceX", 33, 1, -1, 1, Q("10 mm")))
sketch6.addConstraint(Sketcher.Constraint("DistanceX", 41, 1, -1, 1, Q("10 mm")))
sketch6.addConstraint(Sketcher.Constraint("DistanceX", 45, 1, -1, 1, Q("10 mm")))
sketch6.addConstraint(Sketcher.Constraint("DistanceY", -1, 1, 0, 3, Q("62.5 mm")))
sketch6.addConstraint(Sketcher.Constraint("DistanceX", -1, 1, 0, 1, Q("1.5 mm")))
sketch6.addConstraint(Sketcher.Constraint("DistanceX", 4, 2, -1, 1, Q("1.5 mm")))
sketch6.addConstraint(Sketcher.Constraint("DistanceX", 8, 2, -1, 1, Q("1.5 mm")))
sketch6.addConstraint(Sketcher.Constraint("DistanceX", -1, 1, 12, 1, Q("1.5 mm")))
sketch6.addConstraint(Sketcher.Constraint("DistanceX", 16, 2, -1, 1, Q("1.5 mm")))
sketch6.addConstraint(Sketcher.Constraint("DistanceX", -1, 1, 20, 1, Q("1.5 mm")))
sketch6.addConstraint(Sketcher.Constraint("DistanceX", 24, 2, -1, 1, Q("1.5 mm")))
sketch6.addConstraint(Sketcher.Constraint("DistanceX", -1, 1, 28, 1, Q("1.5 mm")))
sketch6.addConstraint(Sketcher.Constraint("DistanceX", 32, 2, -1, 1, Q("1.5 mm")))
sketch6.addConstraint(Sketcher.Constraint("DistanceX", -1, 1, 36, 1, Q("1.5 mm")))
sketch6.addConstraint(Sketcher.Constraint("DistanceX", 40, 2, -1, 1, Q("1.5 mm")))
sketch6.addConstraint(Sketcher.Constraint("DistanceX", 44, 2, -1, 1, Q("1.5 mm")))
sketch6.addConstraint(Sketcher.Constraint("DistanceX", -1, 1, 48, 1, Q("1.5 mm")))
sketch6.addConstraint(Sketcher.Constraint("DistanceX", -1, 1, 52, 1, Q("1.5 mm")))
sketch6.addConstraint(Sketcher.Constraint("DistanceY", 39, 2, -1, 1, Q("6.792402 mm")))
sketch6.addConstraint(Sketcher.Constraint("Distance", 51, Q("2.522091 mm")))
sketch6.addConstraint(Sketcher.Constraint("DistanceY", 30, 2, -1, 1, Q("4.261911 mm")))
sketch6.addConstraint(Sketcher.Constraint("DistanceY", 31, 2, -1, 1, Q("1.729018 mm")))
sketch6.addConstraint(Sketcher.Constraint("DistanceX", -1, 1, 50, 2, Q("9.799231 mm")))
sketch6.addConstraint(Sketcher.Constraint("DistanceX", -1, 1, 54, 2, Q("9.847432 mm")))
sketch6.addConstraint(Sketcher.Constraint("Distance", 39, Q("2.528484 mm")))
sketch6.addConstraint(Sketcher.Constraint("Distance", 55, Q("2.524816 mm")))
pocket1 = doc.addObject("PartDesign::Pocket", "Pocket")
body.addObject(pocket1)
pocket1.Profile = sketch6
pocket1.Length = 3

# Sketch on XY plane
sketch7 = doc.addObject("Sketcher::SketchObject", "Sketch006")
body.addObject(sketch7)
sketch7.AttachmentSupport = (doc.XY_Plane, [""])
sketch7.MapMode = "FlatFace"
sketch7.addGeometry(Part.Circle(V(-0.2, -57.5, 0), V(0, 0, 1), 1.5), False)
sketch7.addGeometry(Part.Circle(V(-0.2, -32.5, 0), V(0, 0, 1), 1.5), False)
sketch7.addGeometry(Part.Circle(V(-14, 19.6, 0), V(0, 0, 1), 1.5), False)
sketch7.addGeometry(Part.Circle(V(13.9, 19.6, 0), V(0, 0, 1), 1.5), False)
sketch7.addConstraint(Sketcher.Constraint("Equal", 0, 1))
sketch7.addConstraint(Sketcher.Constraint("Equal", 1, 2))
sketch7.addConstraint(Sketcher.Constraint("Equal", 2, 3))
sketch7.addConstraint(Sketcher.Constraint("Vertical", 0, 3, 1, 3))
sketch7.addConstraint(Sketcher.Constraint("Diameter", 0, Q("3 mm")))
sketch7.addConstraint(Sketcher.Constraint("DistanceY", 0, 3, 1, 3, Q("25 mm")))
sketch7.addConstraint(Sketcher.Constraint("DistanceX", 2, 3, 1, 3, Q("13.746529 mm")))
sketch7.addConstraint(Sketcher.Constraint("DistanceY", 1, 3, 2, 3, Q("52.172361 mm")))
sketch7.addConstraint(Sketcher.Constraint("DistanceY", 3, 3, 2, 3, Q("0.003149 mm")))
sketch7.addConstraint(Sketcher.Constraint("DistanceX", 0, 3, -1, 1, Q("0.225138 mm")))
sketch7.addConstraint(Sketcher.Constraint("DistanceY", 0, 3, -1, 1, Q("57.524705 mm")))
sketch7.addConstraint(Sketcher.Constraint("DistanceX", -1, 1, 3, 3, Q("13.932428 mm")))
pad2 = doc.addObject("PartDesign::Pad", "Pad001")
body.addObject(pad2)
pad2.Profile = sketch7
pad2.Length = 3

# Sketch on XY plane
sketch8 = doc.addObject("Sketcher::SketchObject", "Sketch007")
body.addObject(sketch8)
sketch8.AttachmentSupport = (doc.XY_Plane, [""])
sketch8.MapMode = "FlatFace"
sketch8.addGeometry(Part.ArcOfCircle(Part.Circle(V(0, 44, 0), V(0, 0, 1), 27), math.radians(-126), math.radians(-90)), False)
sketch8.addGeometry(Part.ArcOfCircle(Part.Circle(V(0, 44, 0), V(0, 0, 1), 27), math.radians(-90), math.radians(-56)), False)
sketch8.addGeometry(Part.ArcOfCircle(Part.Circle(V(0, 63, 0), V(0, 0, 1), 43), math.radians(-112), math.radians(-70)), False)
sketch8.addConstraint(Sketcher.Constraint("Tangent", 0, 2, 1, 1))
sketch8.addConstraint(Sketcher.Constraint("Coincident", 1, 2, 2, 2))
sketch8.addConstraint(Sketcher.Constraint("Coincident", 2, 1, 0, 1))
sketch8.addConstraint(Sketcher.Constraint("Equal", 0, 1))
sketch8.addConstraint(Sketcher.Constraint("PointOnObject", 2, 3, -2))
sketch8.addConstraint(Sketcher.Constraint("Vertical", 1, 3, 0, 2))
sketch8.addConstraint(Sketcher.Constraint("DistanceX", 2, 1, -1, 1, Q("16 mm")))
sketch8.addConstraint(Sketcher.Constraint("DistanceY", 2, 1, 2, 3, Q("40 mm")))
sketch8.addConstraint(Sketcher.Constraint("DistanceY", -1, 1, 2, 3, Q("62.5 mm")))
sketch8.addConstraint(Sketcher.Constraint("Radius", 0, Q("27.051061 mm")))
sketch8.addConstraint(Sketcher.Constraint("DistanceX", 0, 2, 1, 2, Q("15.22106 mm")))
pocket2 = doc.addObject("PartDesign::Pocket", "Pocket001")
body.addObject(pocket2)
pocket2.Profile = sketch8
pocket2.Length = 3
pocket2.Reversed = True

# Sketch on XY plane
sketch9 = doc.addObject("Sketcher::SketchObject", "Sketch008")
body.addObject(sketch9)
sketch9.AttachmentSupport = (doc.XY_Plane, [""])
sketch9.MapMode = "FlatFace"
sketch9.AttachmentOffset = App.Placement(V(0, 0, 3), App.Rotation())
sketch9.addGeometry(Part.Circle(V(-0.2, -34.5, 0), V(0, 0, 1), 2), False)
sketch9.addGeometry(Part.Circle(V(-0.2, -58.5, 0), V(0, 0, 1), 2), False)
sketch9.addConstraint(Sketcher.Constraint("Equal", 0, 1))
sketch9.addConstraint(Sketcher.Constraint("Vertical", 0, 3, 1, 3))
sketch9.addConstraint(Sketcher.Constraint("Diameter", 0, Q("4 mm")))
sketch9.addConstraint(Sketcher.Constraint("DistanceY", 1, 3, 0, 3, Q("24 mm")))
sketch9.addConstraint(Sketcher.Constraint("DistanceX", 0, 3, -1, 1, Q("0.225138 mm")))
sketch9.addConstraint(Sketcher.Constraint("DistanceY", 0, 3, -1, 1, Q("34.524705 mm")))
pocket3 = doc.addObject("PartDesign::Pocket", "Pocket002")
body.addObject(pocket3)
pocket3.Profile = sketch9
pocket3.Length = 10

# Sketch on XY plane
sketch10 = doc.addObject("Sketcher::SketchObject", "Sketch009")
body.addObject(sketch10)
sketch10.AttachmentSupport = (doc.XY_Plane, [""])
sketch10.MapMode = "FlatFace"
sketch10.addGeometry(Part.Circle(V(-13.6, 17.4, 0), V(0, 0, 1), 2), False)
sketch10.addGeometry(Part.Circle(V(12.4, 17.4, 0), V(0, 0, 1), 2), False)
sketch10.addConstraint(Sketcher.Constraint("Equal", 0, 1))
sketch10.addConstraint(Sketcher.Constraint("Horizontal", 0, 3, 1, 3))
sketch10.addConstraint(Sketcher.Constraint("Diameter", 0, Q("4 mm")))
sketch10.addConstraint(Sketcher.Constraint("DistanceX", 0, 3, 1, 3, Q("26 mm")))
sketch10.addConstraint(Sketcher.Constraint("DistanceX", 0, 3, -1, 1, Q("13.562993 mm")))
sketch10.addConstraint(Sketcher.Constraint("DistanceY", -1, 1, 0, 3, Q("17.426345 mm")))
pocket4 = doc.addObject("PartDesign::Pocket", "Pocket003")
body.addObject(pocket4)
pocket4.Profile = sketch10
pocket4.Length = 10
pocket4.Reversed = True

doc.recompute()
